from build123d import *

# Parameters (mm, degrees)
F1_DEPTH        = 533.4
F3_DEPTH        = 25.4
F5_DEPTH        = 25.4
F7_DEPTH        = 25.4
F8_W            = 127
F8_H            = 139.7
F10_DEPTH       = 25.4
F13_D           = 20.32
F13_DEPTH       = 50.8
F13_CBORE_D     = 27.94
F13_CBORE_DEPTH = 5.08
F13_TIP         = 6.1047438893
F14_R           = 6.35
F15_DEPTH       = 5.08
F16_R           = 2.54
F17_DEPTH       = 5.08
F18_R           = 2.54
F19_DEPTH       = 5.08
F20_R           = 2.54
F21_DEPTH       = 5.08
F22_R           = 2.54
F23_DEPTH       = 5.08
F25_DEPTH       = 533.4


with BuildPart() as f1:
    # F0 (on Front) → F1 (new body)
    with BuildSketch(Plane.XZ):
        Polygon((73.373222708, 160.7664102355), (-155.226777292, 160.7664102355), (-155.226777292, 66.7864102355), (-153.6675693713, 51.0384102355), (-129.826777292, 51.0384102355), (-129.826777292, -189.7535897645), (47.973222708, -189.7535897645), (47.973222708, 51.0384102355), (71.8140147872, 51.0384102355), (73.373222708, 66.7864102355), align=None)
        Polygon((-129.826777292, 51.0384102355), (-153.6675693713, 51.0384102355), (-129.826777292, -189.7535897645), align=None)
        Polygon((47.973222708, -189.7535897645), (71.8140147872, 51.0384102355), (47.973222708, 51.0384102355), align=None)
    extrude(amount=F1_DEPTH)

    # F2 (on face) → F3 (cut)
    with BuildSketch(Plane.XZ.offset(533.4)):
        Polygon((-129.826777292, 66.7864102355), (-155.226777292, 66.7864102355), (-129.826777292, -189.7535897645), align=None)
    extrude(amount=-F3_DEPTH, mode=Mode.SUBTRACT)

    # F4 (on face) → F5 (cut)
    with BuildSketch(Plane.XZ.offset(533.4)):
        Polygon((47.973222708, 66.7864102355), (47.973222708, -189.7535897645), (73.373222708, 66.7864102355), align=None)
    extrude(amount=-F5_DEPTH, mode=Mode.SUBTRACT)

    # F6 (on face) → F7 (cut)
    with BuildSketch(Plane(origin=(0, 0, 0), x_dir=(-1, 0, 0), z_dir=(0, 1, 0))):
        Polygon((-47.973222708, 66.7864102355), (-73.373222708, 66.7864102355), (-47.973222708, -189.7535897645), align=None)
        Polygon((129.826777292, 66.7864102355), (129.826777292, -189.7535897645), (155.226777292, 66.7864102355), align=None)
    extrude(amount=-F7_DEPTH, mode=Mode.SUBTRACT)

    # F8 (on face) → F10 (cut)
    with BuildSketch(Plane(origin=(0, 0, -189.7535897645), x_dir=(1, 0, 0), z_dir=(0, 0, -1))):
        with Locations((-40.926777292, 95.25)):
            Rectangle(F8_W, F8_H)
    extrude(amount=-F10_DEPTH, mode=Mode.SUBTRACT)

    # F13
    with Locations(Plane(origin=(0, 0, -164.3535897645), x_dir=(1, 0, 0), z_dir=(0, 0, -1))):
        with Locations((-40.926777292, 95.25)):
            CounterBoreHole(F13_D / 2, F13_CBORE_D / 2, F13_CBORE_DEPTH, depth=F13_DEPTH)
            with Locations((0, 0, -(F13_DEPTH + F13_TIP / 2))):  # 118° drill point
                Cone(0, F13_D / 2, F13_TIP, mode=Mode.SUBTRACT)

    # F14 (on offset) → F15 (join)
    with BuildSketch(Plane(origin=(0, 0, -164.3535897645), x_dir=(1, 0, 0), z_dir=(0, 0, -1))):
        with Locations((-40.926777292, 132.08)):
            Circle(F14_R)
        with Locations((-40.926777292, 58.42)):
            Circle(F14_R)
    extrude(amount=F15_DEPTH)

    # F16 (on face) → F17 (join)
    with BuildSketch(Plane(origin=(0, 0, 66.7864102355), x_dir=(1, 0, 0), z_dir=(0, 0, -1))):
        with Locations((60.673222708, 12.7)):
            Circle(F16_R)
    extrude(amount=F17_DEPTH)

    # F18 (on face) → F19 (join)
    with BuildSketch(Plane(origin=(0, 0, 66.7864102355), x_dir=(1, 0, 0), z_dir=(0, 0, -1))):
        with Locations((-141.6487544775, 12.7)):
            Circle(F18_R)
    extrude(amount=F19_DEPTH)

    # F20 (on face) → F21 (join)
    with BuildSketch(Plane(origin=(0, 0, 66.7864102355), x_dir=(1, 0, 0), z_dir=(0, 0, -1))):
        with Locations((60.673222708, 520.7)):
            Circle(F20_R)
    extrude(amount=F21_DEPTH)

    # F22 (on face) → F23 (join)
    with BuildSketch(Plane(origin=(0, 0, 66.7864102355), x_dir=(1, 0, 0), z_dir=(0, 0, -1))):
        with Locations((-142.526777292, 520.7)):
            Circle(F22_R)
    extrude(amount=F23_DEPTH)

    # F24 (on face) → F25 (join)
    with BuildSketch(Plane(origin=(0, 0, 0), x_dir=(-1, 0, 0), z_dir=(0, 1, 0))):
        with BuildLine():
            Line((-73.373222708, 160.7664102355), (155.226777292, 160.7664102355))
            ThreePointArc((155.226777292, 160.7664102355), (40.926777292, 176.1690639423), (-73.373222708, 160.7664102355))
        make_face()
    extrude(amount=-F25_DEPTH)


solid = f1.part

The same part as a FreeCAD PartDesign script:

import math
import FreeCAD as App
import Part
import Sketcher
Q = App.Units.Quantity


def add_polygon(sketch, points):
    """Adds a closed chain of lines whose ends are joined by coincident constraints."""
    first, n = sketch.GeometryCount, len(points)
    for a, b in zip(points, points[1:] + points[:1]):
        sketch.addGeometry(Part.LineSegment(App.Vector(*a, 0), App.Vector(*b, 0)), False)
    for i in range(n):
        sketch.addConstraint(Sketcher.Constraint("Coincident", first + i, 2, first + (i + 1) % n, 1))

doc = App.newDocument("Part")
body = doc.addObject("PartDesign::Body", "Body")

sketch1 = body.newObject("Sketcher::SketchObject", "Sketch")
sketch1.AttachmentSupport = (doc.getObject("XZ_Plane"), [""])
sketch1.MapMode = "FlatFace"
add_polygon(sketch1, [(73.373223, 160.76641), (-155.226777, 160.76641), (-155.226777, 66.78641), (-153.667569, 51.03841), (-129.826777, -189.75359), (47.973223, -189.75359), (73.373223, 66.78641)])
sketch1.addConstraint(Sketcher.Constraint("Horizontal", 0))
sketch1.addConstraint(Sketcher.Constraint("Vertical", 1))
sketch1.addConstraint(Sketcher.Constraint("Horizontal", 4))
sketch1.addConstraint(Sketcher.Constraint("Vertical", 6))
sketch1.addConstraint(Sketcher.Constraint("Parallel", 2, 3))
sketch1.addConstraint(Sketcher.Constraint("Horizontal", 1, 2, 5, 2))
sketch1.addConstraint(Sketcher.Constraint("DistanceX", 0, 2, 0, 1, Q("9 in")))
sketch1.addConstraint(Sketcher.Constraint("DistanceX", 4, 1, 4, 2, Q("7 in")))
sketch1.addConstraint(Sketcher.Constraint("DistanceY", 1, 2, 1, 1, Q("3.7 in")))
sketch1.addConstraint(Sketcher.Constraint("DistanceX", 1, 2, 3, 2, Q("1 in")))
sketch1.addConstraint(Sketcher.Constraint("DistanceY", 3, 2, 1, 2, Q("10.1 in")))
sketch1.addConstraint(Sketcher.Constraint("DistanceY", 2, 2, 1, 2, Q("0.62 in")))
sketch1.addConstraint(Sketcher.Constraint("DistanceY", -1, 1, 0, 2, Q("160.76641 mm")))
sketch1.addConstraint(Sketcher.Constraint("DistanceX", 2, 2, -1, 1, Q("153.667569 mm")))
pad1 = body.newObject("PartDesign::Pad", "Pad")
pad1.Profile = sketch1
pad1.Length = Q("21 in")

sketch2 = body.newObject("Sketcher::SketchObject", "Sketch001")
sketch2.AttachmentSupport = (doc.getObject("XZ_Plane"), [""])
sketch2.MapMode = "FlatFace"
sketch2.AttachmentOffset = App.Placement(App.Vector(0, 0, 21 * 25.4), App.Rotation())
add_polygon(sketch2, [(-129.826777, 66.78641), (-155.226777, 66.78641), (-129.826777, -189.75359)])
sketch2.addConstraint(Sketcher.Constraint("Horizontal", 0))
sketch2.addConstraint(Sketcher.Constraint("Vertical", 2))
sketch2.addConstraint(Sketcher.Constraint("DistanceX", 0, 2, 0, 1, Q("1 in")))
sketch2.addConstraint(Sketcher.Constraint("DistanceY", 2, 1, 2, 2, Q("10.1 in")))
sketch2.addConstraint(Sketcher.Constraint("DistanceY", -1, 1, 0, 2, Q("66.78641 mm")))
sketch2.addConstraint(Sketcher.Constraint("DistanceX", 0, 2, -1, 1, Q("155.226777 mm")))
pocket1 = body.newObject("PartDesign::Pocket", "Pocket")
pocket1.Profile = sketch2
pocket1.Length = Q("1 in")

sketch3 = body.newObject("Sketcher::SketchObject", "Sketch002")
sketch3.AttachmentSupport = (doc.getObject("XZ_Plane"), [""])
sketch3.MapMode = "FlatFace"
sketch3.AttachmentOffset = App.Placement(App.Vector(0, 0, 21 * 25.4), App.Rotation())
add_polygon(sketch3, [(47.973223, 66.78641), (47.973223, -189.75359), (73.373223, 66.78641)])
sketch3.addConstraint(Sketcher.Constraint("Vertical", 0))
sketch3.addConstraint(Sketcher.Constraint("Horizontal", 2))
sketch3.addConstraint(Sketcher.Constraint("DistanceX", 2, 2, 2, 1, Q("1 in")))
sketch3.addConstraint(Sketcher.Constraint("DistanceY", 0, 2, 0, 1, Q("10.1 in")))
sketch3.addConstraint(Sketcher.Constraint("DistanceY", 0, 2, -1, 1, Q("189.75359 mm")))
sketch3.addConstraint(Sketcher.Constraint("DistanceX", -1, 1, 0, 2, Q("47.973223 mm")))
pocket2 = body.newObject("PartDesign::Pocket", "Pocket001")
pocket2.Profile = sketch3
pocket2.Length = Q("1 in")

sketch4 = body.newObject("Sketcher::SketchObject", "Sketch003")
sketch4.AttachmentSupport = (doc.getObject("XZ_Plane"), [""])
sketch4.MapMode = "FlatFace"
add_polygon(sketch4, [(47.973223, 66.78641), (73.373223, 66.78641), (47.973223, -189.75359)])
add_polygon(sketch4, [(-129.826777, 66.78641), (-129.826777, -189.75359), (-155.226777, 66.78641)])
sketch4.addConstraint(Sketcher.Constraint("Horizontal", 0))
sketch4.addConstraint(Sketcher.Constraint("Vertical", 2))
sketch4.addConstraint(Sketcher.Constraint("Vertical", 3))
sketch4.addConstraint(Sketcher.Constraint("Horizontal", 5))
sketch4.addConstraint(Sketcher.Constraint("Horizontal", 1, 2, 3, 2))
sketch4.addConstraint(Sketcher.Constraint("Horizontal", 2, 2, 4, 2))
sketch4.addConstraint(Sketcher.Constraint("Equal", 0, 5))
sketch4.addConstraint(Sketcher.Constraint("DistanceX", 0, 1, 0, 2, Q("1 in")))
sketch4.addConstraint(Sketcher.Constraint("DistanceY", 2, 1, 2, 2, Q("10.1 in")))
sketch4.addConstraint(Sketcher.Constraint("DistanceX", 3, 2, 1, 2, Q("7 in")))
sketch4.addConstraint(Sketcher.Constraint("DistanceY", -1, 1, 0, 2, Q("66.78641 mm")))
sketch4.addConstraint(Sketcher.Constraint("DistanceX", -1, 1, 0, 2, Q("73.373223 mm")))
pocket3 = body.newObject("PartDesign::Pocket", "Pocket002")
pocket3.Profile = sketch4
pocket3.Length = Q("1 in")
pocket3.Reversed = True

sketch5 = body.newObject("Sketcher::SketchObject", "Sketch004")
sketch5.AttachmentSupport = (doc.getObject("XY_Plane"), [""])
sketch5.MapMode = "FlatFace"
sketch5.AttachmentOffset = App.Placement(App.Vector(0, 0, -189.75359), App.Rotation())
add_polygon(sketch5, [(-104.426777, -165.1), (-104.426777, -25.4), (22.573223, -25.4), (22.573223, -165.1)])
sketch5.addConstraint(Sketcher.Constraint("Vertical", 0))
sketch5.addConstraint(Sketcher.Constraint("Horizontal", 1))
sketch5.addConstraint(Sketcher.Constraint("Vertical", 2))
sketch5.addConstraint(Sketcher.Constraint("Horizontal", 3))
sketch5.addConstraint(Sketcher.Constraint("DistanceX", 1, 1, 1, 2, Q("5 in")))
sketch5.addConstraint(Sketcher.Constraint("DistanceY", 0, 1, 0, 2, Q("5.5 in")))
sketch5.addConstraint(Sketcher.Constraint("DistanceY", 0, 2, -1, 1, Q("1 in")))
sketch5.addConstraint(Sketcher.Constraint("DistanceX", 0, 2, -1, 1, Q("104.426777 mm")))
pocket4 = body.newObject("PartDesign::Pocket", "Pocket003")
pocket4.Profile = sketch5
pocket4.Length = Q("1 in")
pocket4.Reversed = True

sketch6 = body.newObject("Sketcher::SketchObject", "Sketch005")
sketch6.AttachmentSupport = (doc.getObject("XY_Plane"), [""])
sketch6.MapMode = "FlatFace"
sketch6.AttachmentOffset = App.Placement(App.Vector(0, 0, -164.35359), App.Rotation())
sketch6.addGeometry(Part.Circle(App.Vector(-40.926777, -95.25, 0), App.Vector(0, 0, 1), 10.16), False)
sketch6.addConstraint(Sketcher.Constraint("Diameter", 0, Q("0.8 in")))
sketch6.addConstraint(Sketcher.Constraint("DistanceY", 0, 3, -1, 1, Q("3.75 in")))
sketch6.addConstraint(Sketcher.Constraint("DistanceX", 0, 3, -1, 1, Q("40.926777 mm")))
doc.recompute()
hole = body.newObject("PartDesign::Hole", "Hole")
hole.Profile = sketch6
hole.ThreadType = "None"
hole.Diameter = Q("0.8 in")
hole.DepthType = "Dimension"
hole.Depth = Q("2 in")
hole.DrillPoint = "Angled"
hole.DrillPointAngle = 118
hole.HoleCutType = "Counterbore"
hole.HoleCutDiameter = Q("1.1 in")
hole.HoleCutDepth = Q("0.2 in")
hole.Reversed = True

sketch7 = body.newObject("Sketcher::SketchObject", "Sketch006")
sketch7.AttachmentSupport = (doc.getObject("XY_Plane"), [""])
sketch7.MapMode = "FlatFace"
sketch7.AttachmentOffset = App.Placement(App.Vector(0, 0, -164.35359), App.Rotation())
sketch7.addGeometry(Part.Circle(App.Vector(-40.926777, -132.08, 0), App.Vector(0, 0, 1), 6.35), False)
sketch7.addGeometry(Part.Circle(App.Vector(-40.926777, -58.42, 0), App.Vector(0, 0, 1), 6.35), False)
sketch7.addConstraint(Sketcher.Constraint("Equal", 0, 1))
sketch7.addConstraint(Sketcher.Constraint("Vertical", 0, 3, 1, 3))
sketch7.addConstraint(Sketcher.Constraint("Diameter", 0, Q("0.5 in")))
sketch7.addConstraint(Sketcher.Constraint("DistanceY", 0, 3, -1, 1, Q("5.2 in")))
sketch7.addConstraint(Sketcher.Constraint("DistanceY", 1, 3, -1, 1, Q("2.3 in")))
sketch7.addConstraint(Sketcher.Constraint("DistanceX", 0, 3, -1, 1, Q("40.926777 mm")))
pad2 = body.newObject("PartDesign::Pad", "Pad001")
pad2.Profile = sketch7
pad2.Length = Q("0.2 in")
pad2.Reversed = True

sketch8 = body.newObject("Sketcher::SketchObject", "Sketch007")
sketch8.AttachmentSupport = (doc.getObject("XY_Plane"), [""])
sketch8.MapMode = "FlatFace"
sketch8.AttachmentOffset = App.Placement(App.Vector(0, 0, 66.78641), App.Rotation())
sketch8.addGeometry(Part.Circle(App.Vector(60.673223, -12.7, 0), App.Vector(0, 0, 1), 2.54), False)
sketch8.addConstraint(Sketcher.Constraint("Diameter", 0, Q("0.2 in")))
sketch8.addConstraint(Sketcher.Constraint("DistanceY", 0, 3, -1, 1, Q("0.5 in")))
sketch8.addConstraint(Sketcher.Constraint("DistanceX", -1, 1, 0, 3, Q("60.673223 mm")))
pad3 = body.newObject("PartDesign::Pad", "Pad002")
pad3.Profile = sketch8
pad3.Length = Q("0.2 in")
pad3.Reversed = True

sketch9 = body.newObject("Sketcher::SketchObject", "Sketch008")
sketch9.AttachmentSupport = (doc.getObject("XY_Plane"), [""])
sketch9.MapMode = "FlatFace"
sketch9.AttachmentOffset = App.Placement(App.Vector(0, 0, 66.78641), App.Rotation())
sketch9.addGeometry(Part.Circle(App.Vector(-141.648754, -12.7, 0), App.Vector(0, 0, 1), 2.54), False)
sketch9.addConstraint(Sketcher.Constraint("Diameter", 0, Q("0.2 in")))
sketch9.addConstraint(Sketcher.Constraint("DistanceY", 0, 3, -1, 1, Q("0.5 in")))
sketch9.addConstraint(Sketcher.Constraint("DistanceX", 0, 3, -1, 1, Q("141.648754 mm")))
pad4 = body.newObject("PartDesign::Pad", "Pad003")
pad4.Profile = sketch9
pad4.Length = Q("0.2 in")
pad4.Reversed = True

sketch10 = body.newObject("Sketcher::SketchObject", "Sketch009")
sketch10.AttachmentSupport = (doc.getObject("XY_Plane"), [""])
sketch10.MapMode = "FlatFace"
sketch10.AttachmentOffset = App.Placement(App.Vector(0, 0, 66.78641), App.Rotation())
sketch10.addGeometry(Part.Circle(App.Vector(60.673223, -520.7, 0), App.Vector(0, 0, 1), 2.54), False)
sketch10.addConstraint(Sketcher.Constraint("Diameter", 0, Q("0.2 in")))
sketch10.addConstraint(Sketcher.Constraint("DistanceY", 0, 3, -1, 1, Q("20.5 in")))
sketch10.addConstraint(Sketcher.Constraint("DistanceX", -1, 1, 0, 3, Q("60.673223 mm")))
pad5 = body.newObject("PartDesign::Pad", "Pad004")
pad5.Profile = sketch10
pad5.Length = Q("0.2 in")
pad5.Reversed = True

sketch11 = body.newObject("Sketcher::SketchObject", "Sketch010")
sketch11.AttachmentSupport = (doc.getObject("XY_Plane"), [""])
sketch11.MapMode = "FlatFace"
sketch11.AttachmentOffset = App.Placement(App.Vector(0, 0, 66.78641), App.Rotation())
sketch11.addGeometry(Part.Circle(App.Vector(-142.526777, -520.7, 0), App.Vector(0, 0, 1), 2.54), False)
sketch11.addConstraint(Sketcher.Constraint("Diameter", 0, Q("0.2 in")))
sketch11.addConstraint(Sketcher.Constraint("DistanceY", 0, 3, -1, 1, Q("20.5 in")))
sketch11.addConstraint(Sketcher.Constraint("DistanceX", 0, 3, -1, 1, Q("142.526777 mm")))
pad6 = body.newObject("PartDesign::Pad", "Pad005")
pad6.Profile = sketch11
pad6.Length = Q("0.2 in")
pad6.Reversed = True

sketch12 = body.newObject("Sketcher::SketchObject", "Sketch011")
sketch12.AttachmentSupport = (doc.getObject("XZ_Plane"), [""])
sketch12.MapMode = "FlatFace"
sketch12.addGeometry(Part.LineSegment(App.Vector(73.373223, 160.76641, 0), App.Vector(-155.226777, 160.76641, 0)), False)
sketch12.addGeometry(Part.ArcOfCircle(Part.Circle(App.Vector(-40.926777, -255.630936, 0), App.Vector(0, 0, 1), 431.8), math.radians(74.650523), math.radians(105.349477)), False)
sketch12.addConstraint(Sketcher.Constraint("Coincident", 0, 1, 1, 1))
sketch12.addConstraint(Sketcher.Constraint("Coincident", 1, 2, 0, 2))
sketch12.addConstraint(Sketcher.Constraint("Horizontal", 0))
sketch12.addConstraint(Sketcher.Constraint("Radius", 1, Q("17 in")))
sketch12.addConstraint(Sketcher.Constraint("DistanceX", 0, 2, 0, 1, Q("9 in")))
sketch12.addConstraint(Sketcher.Constraint("DistanceY", -1, 1, 0, 1, Q("160.76641 mm")))
sketch12.addConstraint(Sketcher.Constraint("DistanceX", 1, 3, -1, 1, Q("40.926777 mm")))
pad7 = body.newObject("PartDesign::Pad", "Pad006")
pad7.Profile = sketch12
pad7.Length = Q("21 in")

doc.recompute()
